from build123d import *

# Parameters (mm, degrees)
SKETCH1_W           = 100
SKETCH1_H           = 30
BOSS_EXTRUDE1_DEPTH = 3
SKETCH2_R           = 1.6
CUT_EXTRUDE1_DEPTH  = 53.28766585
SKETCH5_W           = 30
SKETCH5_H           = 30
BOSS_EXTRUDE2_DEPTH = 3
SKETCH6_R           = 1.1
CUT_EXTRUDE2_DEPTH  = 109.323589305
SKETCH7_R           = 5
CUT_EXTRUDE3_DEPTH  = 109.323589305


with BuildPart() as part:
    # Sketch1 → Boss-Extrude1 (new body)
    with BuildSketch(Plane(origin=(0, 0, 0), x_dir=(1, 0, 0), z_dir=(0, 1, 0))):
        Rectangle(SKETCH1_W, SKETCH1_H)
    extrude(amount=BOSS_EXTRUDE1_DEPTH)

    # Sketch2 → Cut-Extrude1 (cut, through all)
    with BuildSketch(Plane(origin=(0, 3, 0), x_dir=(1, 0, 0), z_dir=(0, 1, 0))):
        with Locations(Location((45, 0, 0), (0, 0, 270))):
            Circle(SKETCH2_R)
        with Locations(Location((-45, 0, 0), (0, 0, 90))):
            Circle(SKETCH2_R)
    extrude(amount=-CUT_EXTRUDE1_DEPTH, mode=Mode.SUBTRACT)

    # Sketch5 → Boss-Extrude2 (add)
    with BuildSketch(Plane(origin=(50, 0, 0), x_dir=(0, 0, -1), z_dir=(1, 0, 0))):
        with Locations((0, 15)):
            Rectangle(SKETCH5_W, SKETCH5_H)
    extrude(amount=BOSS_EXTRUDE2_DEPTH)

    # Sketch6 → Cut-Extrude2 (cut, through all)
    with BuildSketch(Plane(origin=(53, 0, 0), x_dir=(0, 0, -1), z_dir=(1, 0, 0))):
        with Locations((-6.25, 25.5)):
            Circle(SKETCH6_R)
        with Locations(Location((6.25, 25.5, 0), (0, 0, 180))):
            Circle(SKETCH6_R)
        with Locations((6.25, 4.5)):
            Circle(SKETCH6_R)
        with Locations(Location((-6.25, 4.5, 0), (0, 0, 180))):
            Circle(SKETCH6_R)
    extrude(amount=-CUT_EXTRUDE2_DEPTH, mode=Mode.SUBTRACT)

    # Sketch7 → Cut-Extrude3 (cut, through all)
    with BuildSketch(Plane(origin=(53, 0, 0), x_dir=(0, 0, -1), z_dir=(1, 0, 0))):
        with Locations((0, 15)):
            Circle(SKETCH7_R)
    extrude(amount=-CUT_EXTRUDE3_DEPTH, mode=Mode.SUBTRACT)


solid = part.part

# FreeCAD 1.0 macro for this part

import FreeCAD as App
import Part
import Sketcher
Q = App.Units.Quantity

doc = App.newDocument("Part")
params = doc.addObject("Spreadsheet::Sheet", "Params")
for row, (alias, value) in enumerate([
    ("sketch1_width", "100 mm"),
    ("sketch1_height", "30 mm"),
    ("pad1_length", "3 mm"),
    ("sketch2_diameter", "3.2 mm"),
    ("sketch3_width", "30 mm"),
    ("pad2_length", "3 mm"),
    ("sketch4_diameter", "2.2 mm"),
    ("sketch5_diameter", "10 mm"),
], start=1):
    params.set(f"A{row}", alias)
    params.set(f"B{row}", "=" + value)
    params.setAlias(f"B{row}", alias)

body = doc.addObject("PartDesign::Body", "Body")

# Sketch on XZ plane
sketch1 = body.newObject("Sketcher::SketchObject", "Sketch")
sketch1.AttachmentSupport = (doc.getObject("XZ_Plane"), [""])
sketch1.MapMode = "FlatFace"
sketch1.addGeometry(Part.LineSegment(App.Vector(-50, -15, 0), App.Vector(-50, 15, 0)), False)
sketch1.addGeometry(Part.LineSegment(App.Vector(-50, 15, 0), App.Vector(50, 15, 0)), False)
sketch1.addGeometry(Part.LineSegment(App.Vector(50, 15, 0), App.Vector(50, -15, 0)), False)
sketch1.addGeometry(Part.LineSegment(App.Vector(50, -15, 0), App.Vector(-50, -15, 0)), False)
sketch1.addConstraint(Sketcher.Constraint("Coincident", 0, 2, 1, 1))
sketch1.addConstraint(Sketcher.Constraint("Coincident", 1, 2, 2, 1))
sketch1.addConstraint(Sketcher.Constraint("Coincident", 2, 2, 3, 1))
sketch1.addConstraint(Sketcher.Constraint("Coincident", 3, 2, 0, 1))
sketch1.addConstraint(Sketcher.Constraint("Vertical", 0))
sketch1.addConstraint(Sketcher.Constraint("Horizontal", 1))
sketch1.addConstraint(Sketcher.Constraint("Vertical", 2))
sketch1.addConstraint(Sketcher.Constraint("Horizontal", 3))
sketch1.addConstraint(Sketcher.Constraint("Symmetric", 0, 2, 2, 2, -1, 1))
sketch1.addConstraint(Sketcher.Constraint("DistanceX", 1, 1, 1, 2, Q("100 mm")))
sketch1.addConstraint(Sketcher.Constraint("DistanceY", 0, 1, 0, 2, Q("30 mm")))
sketch1.setExpression("Constraints[9]", "Params.sketch1_width")
sketch1.setExpression("Constraints[10]", "Params.sketch1_height")
pad1 = body.newObject("PartDesign::Pad", "Pad")
pad1.Profile = sketch1
pad1.setExpression("Length", "Params.pad1_length")
pad1.Reversed = True

# Sketch on XZ plane
sketch2 = body.newObject("Sketcher::SketchObject", "Sketch001")
sketch2.AttachmentSupport = (doc.getObject("XZ_Plane"), [""])
sketch2.MapMode = "FlatFace"
sketch2.AttachmentOffset = App.Placement(App.Vector(0, 0, -3), App.Rotation())
sketch2.addGeometry(Part.Circle(App.Vector(45, 0, 0), App.Vector(0, 0, 1), 1.6), False)
sketch2.addGeometry(Part.Circle(App.Vector(-45, 0, 0), App.Vector(0, 0, 1), 1.6), False)
sketch2.addConstraint(Sketcher.Constraint("Equal", 0, 1))
sketch2.addConstraint(Sketcher.Constraint("Symmetric", 0, 3, 1, 3, -1, 1))
sketch2.addConstraint(Sketcher.Constraint("PointOnObject", 0, 3, -1))
sketch2.addConstraint(Sketcher.Constraint("Diameter", 0, Q("3.2 mm")))
sketch2.addConstraint(Sketcher.Constraint("DistanceX", -1, 1, 0, 3, Q("45 mm")))
sketch2.setExpression("Constraints[3]", "Params.sketch2_diameter")
pocket1 = body.newObject("PartDesign::Pocket", "Pocket")
pocket1.Profile = sketch2
pocket1.Type = "ThroughAll"
pocket1.Reversed = True

# Sketch on YZ plane
sketch3 = body.newObject("Sketcher::SketchObject", "Sketch002")
sketch3.AttachmentSupport = (doc.getObject("YZ_Plane"), [""])
sketch3.MapMode = "FlatFace"
sketch3.AttachmentOffset = App.Placement(App.Vector(0, 0, 50), App.Rotation())
sketch3.addGeometry(Part.LineSegment(App.Vector(30, 15, 0), App.Vector(0, 15, 0)), False)
sketch3.addGeometry(Part.LineSegment(App.Vector(0, 15, 0), App.Vector(0, -15, 0)), False)
sketch3.addGeometry(Part.LineSegment(App.Vector(0, -15, 0), App.Vector(30, -15, 0)), False)
sketch3.addGeometry(Part.LineSegment(App.Vector(30, -15, 0), App.Vector(30, 15, 0)), False)
sketch3.addConstraint(Sketcher.Constraint("Coincident", 0, 2, 1, 1))
sketch3.addConstraint(Sketcher.Constraint("Coincident", 1, 2, 2, 1))
sketch3.addConstraint(Sketcher.Constraint("Coincident", 2, 2, 3, 1))
sketch3.addConstraint(Sketcher.Constraint("Coincident", 3, 2, 0, 1))
sketch3.addConstraint(Sketcher.Constraint("Horizontal", 0))
sketch3.addConstraint(Sketcher.Constraint("Vertical", 1))
sketch3.addConstraint(Sketcher.Constraint("Horizontal", 2))
sketch3.addConstraint(Sketcher.Constraint("Vertical", 3))
sketch3.addConstraint(Sketcher.Constraint("Symmetric", 0, 2, 1, 2, -1, 1))
sketch3.addConstraint(Sketcher.Constraint("Equal", 2, 1))
sketch3.addConstraint(Sketcher.Constraint("DistanceX", 0, 2, 0, 1, Q("30 mm")))
sketch3.setExpression("Constraints[10]", "Params.sketch3_width")
pad2 = body.newObject("PartDesign::Pad", "Pad001")
pad2.Profile = sketch3
pad2.setExpression("Length", "Params.pad2_length")

# Sketch on YZ plane
sketch4 = body.newObject("Sketcher::SketchObject", "Sketch003")
sketch4.AttachmentSupport = (doc.getObject("YZ_Plane"), [""])
sketch4.MapMode = "FlatFace"
sketch4.AttachmentOffset = App.Placement(App.Vector(0, 0, 53), App.Rotation())
sketch4.addGeometry(Part.Circle(App.Vector(25.5, 6.2, 0), App.Vector(0, 0, 1), 1.1), False)
sketch4.addGeometry(Part.Circle(App.Vector(25.5, -6.2, 0), App.Vector(0, 0, 1), 1.1), False)
sketch4.addGeometry(Part.Circle(App.Vector(4.5, -6.2, 0), App.Vector(0, 0, 1), 1.1), False)
sketch4.addGeometry(Part.Circle(App.Vector(4.5, 6.2, 0), App.Vector(0, 0, 1), 1.1), False)
sketch4.addConstraint(Sketcher.Constraint("Equal", 0, 1))
sketch4.addConstraint(Sketcher.Constraint("Equal", 1, 2))
sketch4.addConstraint(Sketcher.Constraint("Equal", 2, 3))
sketch4.addConstraint(Sketcher.Constraint("Symmetric", 0, 3, 1, 3, -1))
sketch4.addConstraint(Sketcher.Constraint("Symmetric", 2, 3, 3, 3, -1))
sketch4.addConstraint(Sketcher.Constraint("Horizontal", 1, 3, 2, 3))
sketch4.addConstraint(Sketcher.Constraint("Diameter", 0, Q("2.2 mm")))
sketch4.addConstraint(Sketcher.Constraint("DistanceX", 2, 3, 1, 3, Q("21 mm")))
sketch4.addConstraint(Sketcher.Constraint("DistanceX", -1, 1, 0, 3, Q("25.5 mm")))
sketch4.addConstraint(Sketcher.Constraint("DistanceY", 1, 3, 0, 3, Q("12.5 mm")))
sketch4.setExpression("Constraints[6]", "Params.sketch4_diameter")
pocket2 = body.newObject("PartDesign::Pocket", "Pocket001")
pocket2.Profile = sketch4
pocket2.Type = "ThroughAll"

# Sketch on YZ plane
sketch5 = body.newObject("Sketcher::SketchObject", "Sketch004")
sketch5.AttachmentSupport = (doc.getObject("YZ_Plane"), [""])
sketch5.MapMode = "FlatFace"
sketch5.AttachmentOffset = App.Placement(App.Vector(0, 0, 53), App.Rotation())
sketch5.addGeometry(Part.Circle(App.Vector(15, 0, 0), App.Vector(0, 0, 1), 5), False)
sketch5.addConstraint(Sketcher.Constraint("PointOnObject", 0, 3, -1))
sketch5.addConstraint(Sketcher.Constraint("Diameter", 0, Q("10 mm")))
sketch5.addConstraint(Sketcher.Constraint("DistanceX", -1, 1, 0, 3, Q("15 mm")))
sketch5.setExpression("Constraints[1]", "Params.sketch5_diameter")
pocket3 = body.newObject("PartDesign::Pocket", "Pocket002")
pocket3.Profile = sketch5
pocket3.Type = "ThroughAll"

doc.recompute()
